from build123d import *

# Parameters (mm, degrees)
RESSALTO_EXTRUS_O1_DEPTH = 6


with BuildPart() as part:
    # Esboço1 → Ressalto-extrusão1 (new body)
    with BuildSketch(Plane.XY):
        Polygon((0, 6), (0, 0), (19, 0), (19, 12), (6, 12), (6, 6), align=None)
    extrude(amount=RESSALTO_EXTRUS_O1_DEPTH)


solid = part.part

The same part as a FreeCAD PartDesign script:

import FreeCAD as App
import Part
import Sketcher


def add_polygon(sketch, points):
    """Adds a closed chain of lines whose ends are joined by coincident constraints."""
    first, n = sketch.GeometryCount, len(points)
    for a, b in zip(points, points[1:] + points[:1]):
        sketch.addGeometry(Part.LineSegment(App.Vector(*a, 0), App.Vector(*b, 0)), False)
    for i in range(n):
        sketch.addConstraint(Sketcher.Constraint("Coincident", first + i, 2, first + (i + 1) % n, 1))

doc = App.newDocument("Part")
body = doc.addObject("PartDesign::Body", "Body")

sketch1 = body.newObject("Sketcher::SketchObject", "Sketch")
sketch1.AttachmentSupport = (doc.getObject("XY_Plane"), [""])
sketch1.MapMode = "FlatFace"
add_polygon(sketch1, [(0, 6), (0, 0), (19, 0), (19, 12), (6, 12), (6, 6)])
sketch1.addConstraint([
    Sketcher.Constraint("Vertical", 0),
    Sketcher.Constraint("Horizontal", 1),
    Sketcher.Constraint("Vertical", 2),
    Sketcher.Constraint("Horizontal", 3),
    Sketcher.Constraint("Vertical", 4),
    Sketcher.Constraint("Horizontal", 5),
    Sketcher.Constraint("Coincident", 0, 2, -1, 1),
    Sketcher.Constraint("Equal", 5, 0),
    Sketcher.Constraint("Equal", 0, 4),
    Sketcher.Constraint("DistanceX", 1, 1, 1, 2, 19.0),
    Sketcher.Constraint("DistanceX", 3, 2, 3, 1, 13.0),
])
pad1 = body.newObject("PartDesign::Pad", "Pad")
pad1.Profile = sketch1
pad1.Length = 6

doc.recompute()
